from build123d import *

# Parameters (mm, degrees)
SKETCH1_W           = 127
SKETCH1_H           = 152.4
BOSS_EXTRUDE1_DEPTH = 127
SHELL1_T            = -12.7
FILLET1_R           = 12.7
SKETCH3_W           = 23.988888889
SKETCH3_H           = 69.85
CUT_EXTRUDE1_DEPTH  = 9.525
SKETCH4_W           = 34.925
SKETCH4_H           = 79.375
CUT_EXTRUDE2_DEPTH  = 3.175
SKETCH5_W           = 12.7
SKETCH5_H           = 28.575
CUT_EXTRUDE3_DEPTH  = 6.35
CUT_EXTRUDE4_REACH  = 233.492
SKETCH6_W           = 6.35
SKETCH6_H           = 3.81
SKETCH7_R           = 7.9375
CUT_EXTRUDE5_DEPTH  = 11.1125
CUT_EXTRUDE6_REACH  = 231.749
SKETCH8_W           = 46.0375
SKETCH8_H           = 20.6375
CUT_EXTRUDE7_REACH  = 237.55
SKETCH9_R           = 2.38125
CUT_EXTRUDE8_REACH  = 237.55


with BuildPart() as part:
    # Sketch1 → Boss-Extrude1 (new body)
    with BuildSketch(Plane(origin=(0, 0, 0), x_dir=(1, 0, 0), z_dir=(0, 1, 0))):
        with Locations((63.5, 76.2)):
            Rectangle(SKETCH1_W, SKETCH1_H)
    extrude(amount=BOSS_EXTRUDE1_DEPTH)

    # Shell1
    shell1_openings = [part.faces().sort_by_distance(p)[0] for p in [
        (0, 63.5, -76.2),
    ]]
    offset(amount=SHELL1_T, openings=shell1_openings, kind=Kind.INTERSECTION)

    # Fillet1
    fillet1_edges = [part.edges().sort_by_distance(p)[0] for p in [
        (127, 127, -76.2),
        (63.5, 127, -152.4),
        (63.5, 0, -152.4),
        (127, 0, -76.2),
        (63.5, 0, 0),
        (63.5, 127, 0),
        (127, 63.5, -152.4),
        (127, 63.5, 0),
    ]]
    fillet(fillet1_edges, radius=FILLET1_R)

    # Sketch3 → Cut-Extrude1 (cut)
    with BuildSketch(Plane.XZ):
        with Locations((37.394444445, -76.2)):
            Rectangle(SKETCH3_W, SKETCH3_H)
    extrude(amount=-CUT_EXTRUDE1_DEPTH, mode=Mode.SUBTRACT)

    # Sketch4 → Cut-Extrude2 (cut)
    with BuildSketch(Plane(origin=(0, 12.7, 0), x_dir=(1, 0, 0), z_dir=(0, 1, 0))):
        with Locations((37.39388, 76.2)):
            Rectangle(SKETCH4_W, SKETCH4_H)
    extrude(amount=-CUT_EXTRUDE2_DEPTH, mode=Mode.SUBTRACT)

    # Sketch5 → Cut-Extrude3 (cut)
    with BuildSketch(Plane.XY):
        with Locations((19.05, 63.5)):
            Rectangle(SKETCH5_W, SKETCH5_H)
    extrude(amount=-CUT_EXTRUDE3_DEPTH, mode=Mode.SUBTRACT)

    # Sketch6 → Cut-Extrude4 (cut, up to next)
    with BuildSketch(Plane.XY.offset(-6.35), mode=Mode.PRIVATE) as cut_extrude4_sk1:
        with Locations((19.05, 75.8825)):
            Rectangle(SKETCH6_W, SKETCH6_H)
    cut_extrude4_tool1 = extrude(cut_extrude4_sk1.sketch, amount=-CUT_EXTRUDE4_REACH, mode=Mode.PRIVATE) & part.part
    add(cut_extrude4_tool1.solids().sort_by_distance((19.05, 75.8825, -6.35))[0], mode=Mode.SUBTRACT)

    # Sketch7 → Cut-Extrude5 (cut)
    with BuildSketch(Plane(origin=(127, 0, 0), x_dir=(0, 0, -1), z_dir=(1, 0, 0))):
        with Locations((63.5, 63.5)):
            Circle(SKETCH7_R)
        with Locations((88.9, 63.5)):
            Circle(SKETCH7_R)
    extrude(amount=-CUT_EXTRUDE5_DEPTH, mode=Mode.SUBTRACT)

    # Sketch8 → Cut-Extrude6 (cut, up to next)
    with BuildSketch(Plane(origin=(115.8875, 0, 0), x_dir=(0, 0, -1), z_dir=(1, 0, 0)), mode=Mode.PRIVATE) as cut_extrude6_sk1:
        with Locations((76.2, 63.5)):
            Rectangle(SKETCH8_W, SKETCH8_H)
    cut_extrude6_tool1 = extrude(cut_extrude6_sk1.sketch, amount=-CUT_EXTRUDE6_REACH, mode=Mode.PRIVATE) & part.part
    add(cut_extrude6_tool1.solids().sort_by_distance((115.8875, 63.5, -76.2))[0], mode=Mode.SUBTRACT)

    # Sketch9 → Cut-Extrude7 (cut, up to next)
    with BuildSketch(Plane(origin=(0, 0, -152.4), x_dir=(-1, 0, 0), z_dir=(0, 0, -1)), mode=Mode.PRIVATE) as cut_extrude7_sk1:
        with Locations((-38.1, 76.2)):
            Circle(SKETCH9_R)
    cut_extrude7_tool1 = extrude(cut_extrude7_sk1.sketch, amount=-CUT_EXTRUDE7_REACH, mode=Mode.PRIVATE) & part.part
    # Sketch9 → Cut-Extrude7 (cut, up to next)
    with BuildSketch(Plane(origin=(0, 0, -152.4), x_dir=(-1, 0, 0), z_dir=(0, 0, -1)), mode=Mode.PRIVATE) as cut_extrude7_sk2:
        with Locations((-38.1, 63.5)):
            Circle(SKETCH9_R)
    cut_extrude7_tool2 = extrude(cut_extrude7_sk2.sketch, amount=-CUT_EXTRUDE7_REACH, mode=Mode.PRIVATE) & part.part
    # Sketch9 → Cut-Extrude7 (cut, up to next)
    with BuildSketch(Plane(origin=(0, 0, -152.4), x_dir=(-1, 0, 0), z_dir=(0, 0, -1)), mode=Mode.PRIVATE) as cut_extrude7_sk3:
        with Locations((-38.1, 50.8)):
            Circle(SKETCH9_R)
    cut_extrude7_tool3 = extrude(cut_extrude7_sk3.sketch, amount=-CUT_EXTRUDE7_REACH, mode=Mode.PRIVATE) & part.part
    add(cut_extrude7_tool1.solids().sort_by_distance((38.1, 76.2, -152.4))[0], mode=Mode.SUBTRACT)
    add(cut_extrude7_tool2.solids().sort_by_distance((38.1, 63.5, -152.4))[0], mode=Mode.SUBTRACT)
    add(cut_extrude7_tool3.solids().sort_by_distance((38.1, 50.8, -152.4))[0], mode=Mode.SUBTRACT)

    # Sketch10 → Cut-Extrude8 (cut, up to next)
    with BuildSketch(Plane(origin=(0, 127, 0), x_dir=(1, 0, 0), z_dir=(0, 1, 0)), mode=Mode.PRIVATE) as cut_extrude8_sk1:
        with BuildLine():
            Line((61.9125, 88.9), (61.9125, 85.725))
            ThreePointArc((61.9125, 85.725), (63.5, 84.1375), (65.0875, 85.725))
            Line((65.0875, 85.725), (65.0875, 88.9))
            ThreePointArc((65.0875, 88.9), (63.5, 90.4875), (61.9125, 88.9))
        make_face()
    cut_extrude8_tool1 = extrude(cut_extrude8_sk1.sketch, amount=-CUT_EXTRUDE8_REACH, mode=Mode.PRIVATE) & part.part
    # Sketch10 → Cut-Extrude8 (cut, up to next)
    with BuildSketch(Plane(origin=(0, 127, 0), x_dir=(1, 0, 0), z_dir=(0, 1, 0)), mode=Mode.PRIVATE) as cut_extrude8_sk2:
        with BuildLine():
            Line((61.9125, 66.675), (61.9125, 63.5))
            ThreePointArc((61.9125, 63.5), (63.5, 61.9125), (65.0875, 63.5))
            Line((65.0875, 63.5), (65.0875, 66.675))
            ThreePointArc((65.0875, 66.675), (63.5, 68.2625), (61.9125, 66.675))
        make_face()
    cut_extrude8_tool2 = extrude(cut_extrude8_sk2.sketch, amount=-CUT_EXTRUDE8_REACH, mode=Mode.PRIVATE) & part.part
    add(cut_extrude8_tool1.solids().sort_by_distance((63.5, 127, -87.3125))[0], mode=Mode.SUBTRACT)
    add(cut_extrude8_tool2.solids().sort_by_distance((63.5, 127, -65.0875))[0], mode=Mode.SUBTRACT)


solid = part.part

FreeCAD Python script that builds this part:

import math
import FreeCAD as App
import Part
import Sketcher
from FreeCAD import Vector
Q = App.Units.Quantity


def edges_at(feature, points):
    """Names of the edges that pass closest to the given points."""
    edges = feature.Shape.Edges
    near = lambda p: min(range(len(edges)), key=lambda i: edges[i].distToShape(Part.Vertex(*p))[0])
    return sorted({f"Edge{near(p) + 1}" for p in points})


def faces_at(feature, points):
    """Names of the faces that lie closest to the given points."""
    faces = feature.Shape.Faces
    near = lambda p: min(range(len(faces)), key=lambda i: faces[i].distToShape(Part.Vertex(*p))[0])
    return sorted({f"Face{near(p) + 1}" for p in points})


def add_polygon(sketch, points):
    """Adds a closed chain of lines whose ends are joined by coincident constraints."""
    first, n = sketch.GeometryCount, len(points)
    for a, b in zip(points, points[1:] + points[:1]):
        sketch.addGeometry(Part.LineSegment(App.Vector(*a, 0), App.Vector(*b, 0)), False)
    for i in range(n):
        sketch.addConstraint(Sketcher.Constraint("Coincident", first + i, 2, first + (i + 1) % n, 1))

doc = App.newDocument("Part")
body = doc.addObject("PartDesign::Body", "Body")

# Sketch on XZ plane
sketch1 = body.newObject("Sketcher::SketchObject", "Sketch")
sketch1.AttachmentSupport = (doc.getObject("XZ_Plane"), [""])
sketch1.MapMode = "FlatFace"
add_polygon(sketch1, [(0, -152), (0, 0), (127, 0), (127, -152)])  # lines 0-3
sketch1.addConstraint([
    Sketcher.Constraint("Vertical", 0),
    Sketcher.Constraint("Horizontal", 1),
    Sketcher.Constraint("Vertical", 2),
    Sketcher.Constraint("Horizontal", 3),
    Sketcher.Constraint("Coincident", 0, 2, -1, 1),
    Sketcher.Constraint("DistanceX", 1, 1, 1, 2, Q("5 in")),
    Sketcher.Constraint("DistanceY", 0, 1, 0, 2, Q("6 in")),
])
pad1 = body.newObject("PartDesign::Pad", "Pad")
pad1.Profile = sketch1
pad1.Length = Q("5 in")
pad1.Reversed = True
doc.recompute()

thickness = body.newObject("PartDesign::Thickness", "Thickness")
thickness.Base = (pad1, faces_at(pad1, [(0, 63.5, -76.2)]))
thickness.Value = Q("0.5 in")
thickness.Reversed = True
thickness.Join = "Intersection"
doc.recompute()

fillet = body.newObject("PartDesign::Fillet", "Fillet")
fillet.Base = (thickness, edges_at(thickness, [
    (127, 127, -76.2),
    (63.5, 127, -152.4),
    (63.5, 0, -152.4),
    (127, 0, -76.2),
    (63.5, 0, 0),
    (63.5, 127, 0),
    (127, 63.5, -152.4),
    (127, 63.5, 0),
]))
fillet.Radius = Q("0.5 in")

# Sketch on XZ plane
sketch2 = body.newObject("Sketcher::SketchObject", "Sketch001")
sketch2.AttachmentSupport = (doc.getObject("XZ_Plane"), [""])
sketch2.MapMode = "FlatFace"
add_polygon(sketch2, [(25, -41), (25, -111), (49, -111), (49, -41)])  # lines 0-3
sketch2.addConstraint([
    Sketcher.Constraint("Vertical", 0),
    Sketcher.Constraint("Horizontal", 1),
    Sketcher.Constraint("Vertical", 2),
    Sketcher.Constraint("Horizontal", 3),
    Sketcher.Constraint("DistanceX", -1, 1, 0, 2, Q("1 in")),
    Sketcher.Constraint("DistanceY", 0, 2, 0, 1, Q("2.75 in")),
    Sketcher.Constraint("DistanceY", 0, 2, -1, 1, Q("4.375 in")),
    Sketcher.Constraint("DistanceX", 1, 1, 1, 2, 23.988889),
])
pocket1 = body.newObject("PartDesign::Pocket", "Pocket")
pocket1.Profile = sketch2
pocket1.Length = Q("0.375 in")

# Sketch on XZ plane
sketch3 = body.newObject("Sketcher::SketchObject", "Sketch002")
sketch3.AttachmentSupport = (doc.getObject("XZ_Plane"), [""])
sketch3.MapMode = "FlatFace"
sketch3.AttachmentOffset = App.Placement(Vector(0, 0, -0.5 * 25.4), App.Rotation())
add_polygon(sketch3, [(20, -116), (20, -37), (55, -37), (55, -116)])  # lines 0-3
sketch3.addConstraint([
    Sketcher.Constraint("Vertical", 0),
    Sketcher.Constraint("Horizontal", 1),
    Sketcher.Constraint("Vertical", 2),
    Sketcher.Constraint("Horizontal", 3),
    Sketcher.Constraint("DistanceX", 1, 1, 1, 2, Q("1.375 in")),
    Sketcher.Constraint("DistanceY", 0, 1, 0, 2, Q("3.125 in")),
    Sketcher.Constraint("DistanceY", 0, 2, -1, 1, Q("1.4375 in")),
    Sketcher.Constraint("DistanceX", -1, 1, 0, 2, Q("0.7847 in")),
])
pocket2 = body.newObject("PartDesign::Pocket", "Pocket001")
pocket2.Profile = sketch3
pocket2.Length = Q("0.125 in")
pocket2.Reversed = True

# Sketch on XY plane
sketch4 = body.newObject("Sketcher::SketchObject", "Sketch003")
sketch4.AttachmentSupport = (doc.getObject("XY_Plane"), [""])
sketch4.MapMode = "FlatFace"
add_polygon(sketch4, [(13, 78), (13, 49), (25, 49), (25, 78)])  # lines 0-3
sketch4.addConstraint([
    Sketcher.Constraint("Vertical", 0),
    Sketcher.Constraint("Horizontal", 1),
    Sketcher.Constraint("Vertical", 2),
    Sketcher.Constraint("Horizontal", 3),
    Sketcher.Constraint("DistanceX", 1, 1, 1, 2, Q("0.5 in")),
    Sketcher.Constraint("DistanceX", -1, 1, 1, 2, Q("1 in")),
    Sketcher.Constraint("DistanceY", 0, 2, 0, 1, Q("1.125 in")),
    Sketcher.Constraint("DistanceY", -1, 1, 0, 2, Q("1.9375 in")),
])
pocket3 = body.newObject("PartDesign::Pocket", "Pocket002")
pocket3.Profile = sketch4
pocket3.Length = Q("0.25 in")

# Sketch on XY plane
sketch5 = body.newObject("Sketcher::SketchObject", "Sketch004")
sketch5.AttachmentSupport = (doc.getObject("XY_Plane"), [""])
sketch5.MapMode = "FlatFace"
sketch5.AttachmentOffset = App.Placement(Vector(0, 0, -0.25 * 25.4), App.Rotation())
add_polygon(sketch5, [(15.9, 77.8), (15.9, 74), (22.2, 74), (22.2, 77.8)])  # lines 0-3
sketch5.addConstraint([
    Sketcher.Constraint("Vertical", 0),
    Sketcher.Constraint("Horizontal", 1),
    Sketcher.Constraint("Vertical", 2),
    Sketcher.Constraint("Horizontal", 3),
    Sketcher.Constraint("DistanceX", 1, 1, 1, 2, Q("0.25 in")),
    Sketcher.Constraint("DistanceY", 0, 2, 0, 1, Q("0.15 in")),
    Sketcher.Constraint("DistanceX", -1, 1, 0, 2, Q("0.625 in")),
    Sketcher.Constraint("DistanceY", -1, 1, 2, 2, Q("3.0625 in")),
])
pocket4 = body.newObject("PartDesign::Pocket", "Pocket003")
pocket4.Profile = sketch5
pocket4.Type = "UpToFirst"

# Sketch on YZ plane
sketch6 = body.newObject("Sketcher::SketchObject", "Sketch005")
sketch6.AttachmentSupport = (doc.getObject("YZ_Plane"), [""])
sketch6.MapMode = "FlatFace"
sketch6.AttachmentOffset = App.Placement(Vector(0, 0, 5 * 25.4), App.Rotation())
sketch6.addGeometry([
    Part.Circle(Vector(64, -64, 0), Vector(0, 0, 1), 8),
    Part.Circle(Vector(64, -89, 0), Vector(0, 0, 1), 8),
], False)
sketch6.addConstraint([
    Sketcher.Constraint("Equal", 0, 1),
    Sketcher.Constraint("Vertical", 0, 3, 1, 3),
    Sketcher.Constraint("Diameter", 0, Q("0.625 in")),
    Sketcher.Constraint("DistanceY", 1, 3, 0, 3, Q("1 in")),
    Sketcher.Constraint("DistanceX", -1, 1, 0, 3, Q("2.5 in")),
    Sketcher.Constraint("DistanceY", 0, 3, -1, 1, Q("2.5 in")),
])
pocket5 = body.newObject("PartDesign::Pocket", "Pocket004")
pocket5.Profile = sketch6
pocket5.Length = Q("0.4375 in")

# Sketch on YZ plane
sketch7 = body.newObject("Sketcher::SketchObject", "Sketch006")
sketch7.AttachmentSupport = (doc.getObject("YZ_Plane"), [""])
sketch7.MapMode = "FlatFace"
sketch7.AttachmentOffset = App.Placement(Vector(0, 0, 4.5625 * 25.4), App.Rotation())
add_polygon(sketch7, [(74, -53), (53, -53), (53, -99), (74, -99)])  # lines 0-3
sketch7.addConstraint([
    Sketcher.Constraint("Horizontal", 0),
    Sketcher.Constraint("Vertical", 1),
    Sketcher.Constraint("Horizontal", 2),
    Sketcher.Constraint("Vertical", 3),
    Sketcher.Constraint("DistanceX", 0, 2, 0, 1, Q("0.8125 in")),
    Sketcher.Constraint("DistanceY", 1, 2, 1, 1, Q("1.8125 in")),
    Sketcher.Constraint("DistanceX", -1, 1, 0, 2, Q("2.09375 in")),
    Sketcher.Constraint("DistanceY", 0, 2, -1, 1, Q("2.09375 in")),
])
pocket6 = body.newObject("PartDesign::Pocket", "Pocket005")
pocket6.Profile = sketch7
pocket6.Type = "UpToFirst"

# Sketch on XY plane
sketch8 = body.newObject("Sketcher::SketchObject", "Sketch007")
sketch8.AttachmentSupport = (doc.getObject("XY_Plane"), [""])
sketch8.MapMode = "FlatFace"
sketch8.AttachmentOffset = App.Placement(Vector(0, 0, -6 * 25.4), App.Rotation())
sketch8.addGeometry(Part.Circle(Vector(38.1, 76.2, 0), Vector(0, 0, 1), 2.4), False)
sketch8.addConstraint([
    Sketcher.Constraint("Diameter", 0, Q("0.1875 in")),
    Sketcher.Constraint("DistanceY", -1, 1, 0, 3, Q("3 in")),
    Sketcher.Constraint("DistanceX", -1, 1, 0, 3, Q("1.5 in")),
])
pocket7 = body.newObject("PartDesign::Pocket", "Pocket006")
pocket7.Profile = sketch8
pocket7.Type = "UpToFirst"
pocket7.Reversed = True

# Sketch on XY plane
sketch9 = body.newObject("Sketcher::SketchObject", "Sketch008")
sketch9.AttachmentSupport = (doc.getObject("XY_Plane"), [""])
sketch9.MapMode = "FlatFace"
sketch9.AttachmentOffset = App.Placement(Vector(0, 0, -6 * 25.4), App.Rotation())
sketch9.addGeometry(Part.Circle(Vector(38.1, 63.5, 0), Vector(0, 0, 1), 2.4), False)
sketch9.addConstraint([
    Sketcher.Constraint("Diameter", 0, Q("0.1875 in")),
    Sketcher.Constraint("DistanceX", -1, 1, 0, 3, Q("1.5 in")),
    Sketcher.Constraint("DistanceY", -1, 1, 0, 3, Q("2.5 in")),
])
pocket8 = body.newObject("PartDesign::Pocket", "Pocket007")
pocket8.Profile = sketch9
pocket8.Type = "UpToFirst"
pocket8.Reversed = True

# Sketch on XY plane
sketch10 = body.newObject("Sketcher::SketchObject", "Sketch009")
sketch10.AttachmentSupport = (doc.getObject("XY_Plane"), [""])
sketch10.MapMode = "FlatFace"
sketch10.AttachmentOffset = App.Placement(Vector(0, 0, -6 * 25.4), App.Rotation())
sketch10.addGeometry(Part.Circle(Vector(38.1, 50.8, 0), Vector(0, 0, 1), 2.4), False)
sketch10.addConstraint([
    Sketcher.Constraint("Diameter", 0, Q("0.1875 in")),
    Sketcher.Constraint("DistanceY", -1, 1, 0, 3, Q("2 in")),
    Sketcher.Constraint("DistanceX", -1, 1, 0, 3, Q("1.5 in")),
])
pocket9 = body.newObject("PartDesign::Pocket", "Pocket008")
pocket9.Profile = sketch10
pocket9.Type = "UpToFirst"
pocket9.Reversed = True

# Sketch on XZ plane
sketch11 = body.newObject("Sketcher::SketchObject", "Sketch010")
sketch11.AttachmentSupport = (doc.getObject("XZ_Plane"), [""])
sketch11.MapMode = "FlatFace"
sketch11.AttachmentOffset = App.Placement(Vector(0, 0, -5 * 25.4), App.Rotation())
sketch11.addGeometry([
    Part.LineSegment(Vector(61.9, -88.9, 0), Vector(61.9, -85.7, 0)),
    Part.ArcOfCircle(Part.Circle(Vector(63.5, -85.7, 0), Vector(0, 0, 1), 1.6), math.radians(0), math.radians(180)),
    Part.LineSegment(Vector(65.1, -85.7, 0), Vector(65.1, -88.9, 0)),
    Part.ArcOfCircle(Part.Circle(Vector(63.5, -88.9, 0), Vector(0, 0, 1), 1.6), math.radians(180), math.radians(360)),
], False)
sketch11.addConstraint([
    Sketcher.Constraint("Tangent", 0, 2, 1, 2),
    Sketcher.Constraint("Tangent", 1, 1, 2, 1),
    Sketcher.Constraint("Tangent", 2, 2, 3, 2),
    Sketcher.Constraint("Tangent", 3, 1, 0, 1),
    Sketcher.Constraint("Vertical", 0),
    Sketcher.Constraint("Vertical", 2),
    Sketcher.Constraint("Radius", 1, Q("0.0625 in")),
    Sketcher.Constraint("DistanceX", -1, 1, 1, 3, Q("2.5 in")),
    Sketcher.Constraint("DistanceY", 3, 3, -1, 1, Q("3.5 in")),
    Sketcher.Constraint("DistanceY", 0, 1, 0, 2, Q("0.125 in")),
])
pocket10 = body.newObject("PartDesign::Pocket", "Pocket009")
pocket10.Profile = sketch11
pocket10.Type = "UpToFirst"
pocket10.Reversed = True

# Sketch on XZ plane
sketch12 = body.newObject("Sketcher::SketchObject", "Sketch011")
sketch12.AttachmentSupport = (doc.getObject("XZ_Plane"), [""])
sketch12.MapMode = "FlatFace"
sketch12.AttachmentOffset = App.Placement(Vector(0, 0, -5 * 25.4), App.Rotation())
sketch12.addGeometry([
    Part.LineSegment(Vector(61.9, -66.7, 0), Vector(61.9, -63.5, 0)),
    Part.ArcOfCircle(Part.Circle(Vector(63.5, -63.5, 0), Vector(0, 0, 1), 1.6), math.radians(0), math.radians(180)),
    Part.LineSegment(Vector(65.1, -63.5, 0), Vector(65.1, -66.7, 0)),
    Part.ArcOfCircle(Part.Circle(Vector(63.5, -66.7, 0), Vector(0, 0, 1), 1.6), math.radians(180), math.radians(360)),
], False)
sketch12.addConstraint([
    Sketcher.Constraint("Tangent", 0, 2, 1, 2),
    Sketcher.Constraint("Tangent", 1, 1, 2, 1),
    Sketcher.Constraint("Tangent", 2, 2, 3, 2),
    Sketcher.Constraint("Tangent", 3, 1, 0, 1),
    Sketcher.Constraint("Vertical", 0),
    Sketcher.Constraint("Vertical", 2),
    Sketcher.Constraint("Radius", 1, Q("0.0625 in")),
    Sketcher.Constraint("DistanceX", -1, 1, 1, 3, Q("2.5 in")),
    Sketcher.Constraint("DistanceY", 1, 3, -1, 1, Q("2.5 in")),
    Sketcher.Constraint("DistanceY", 0, 1, 0, 2, Q("0.125 in")),
])
pocket11 = body.newObject("PartDesign::Pocket", "Pocket010")
pocket11.Profile = sketch12
pocket11.Type = "UpToFirst"
pocket11.Reversed = True

doc.recompute()
